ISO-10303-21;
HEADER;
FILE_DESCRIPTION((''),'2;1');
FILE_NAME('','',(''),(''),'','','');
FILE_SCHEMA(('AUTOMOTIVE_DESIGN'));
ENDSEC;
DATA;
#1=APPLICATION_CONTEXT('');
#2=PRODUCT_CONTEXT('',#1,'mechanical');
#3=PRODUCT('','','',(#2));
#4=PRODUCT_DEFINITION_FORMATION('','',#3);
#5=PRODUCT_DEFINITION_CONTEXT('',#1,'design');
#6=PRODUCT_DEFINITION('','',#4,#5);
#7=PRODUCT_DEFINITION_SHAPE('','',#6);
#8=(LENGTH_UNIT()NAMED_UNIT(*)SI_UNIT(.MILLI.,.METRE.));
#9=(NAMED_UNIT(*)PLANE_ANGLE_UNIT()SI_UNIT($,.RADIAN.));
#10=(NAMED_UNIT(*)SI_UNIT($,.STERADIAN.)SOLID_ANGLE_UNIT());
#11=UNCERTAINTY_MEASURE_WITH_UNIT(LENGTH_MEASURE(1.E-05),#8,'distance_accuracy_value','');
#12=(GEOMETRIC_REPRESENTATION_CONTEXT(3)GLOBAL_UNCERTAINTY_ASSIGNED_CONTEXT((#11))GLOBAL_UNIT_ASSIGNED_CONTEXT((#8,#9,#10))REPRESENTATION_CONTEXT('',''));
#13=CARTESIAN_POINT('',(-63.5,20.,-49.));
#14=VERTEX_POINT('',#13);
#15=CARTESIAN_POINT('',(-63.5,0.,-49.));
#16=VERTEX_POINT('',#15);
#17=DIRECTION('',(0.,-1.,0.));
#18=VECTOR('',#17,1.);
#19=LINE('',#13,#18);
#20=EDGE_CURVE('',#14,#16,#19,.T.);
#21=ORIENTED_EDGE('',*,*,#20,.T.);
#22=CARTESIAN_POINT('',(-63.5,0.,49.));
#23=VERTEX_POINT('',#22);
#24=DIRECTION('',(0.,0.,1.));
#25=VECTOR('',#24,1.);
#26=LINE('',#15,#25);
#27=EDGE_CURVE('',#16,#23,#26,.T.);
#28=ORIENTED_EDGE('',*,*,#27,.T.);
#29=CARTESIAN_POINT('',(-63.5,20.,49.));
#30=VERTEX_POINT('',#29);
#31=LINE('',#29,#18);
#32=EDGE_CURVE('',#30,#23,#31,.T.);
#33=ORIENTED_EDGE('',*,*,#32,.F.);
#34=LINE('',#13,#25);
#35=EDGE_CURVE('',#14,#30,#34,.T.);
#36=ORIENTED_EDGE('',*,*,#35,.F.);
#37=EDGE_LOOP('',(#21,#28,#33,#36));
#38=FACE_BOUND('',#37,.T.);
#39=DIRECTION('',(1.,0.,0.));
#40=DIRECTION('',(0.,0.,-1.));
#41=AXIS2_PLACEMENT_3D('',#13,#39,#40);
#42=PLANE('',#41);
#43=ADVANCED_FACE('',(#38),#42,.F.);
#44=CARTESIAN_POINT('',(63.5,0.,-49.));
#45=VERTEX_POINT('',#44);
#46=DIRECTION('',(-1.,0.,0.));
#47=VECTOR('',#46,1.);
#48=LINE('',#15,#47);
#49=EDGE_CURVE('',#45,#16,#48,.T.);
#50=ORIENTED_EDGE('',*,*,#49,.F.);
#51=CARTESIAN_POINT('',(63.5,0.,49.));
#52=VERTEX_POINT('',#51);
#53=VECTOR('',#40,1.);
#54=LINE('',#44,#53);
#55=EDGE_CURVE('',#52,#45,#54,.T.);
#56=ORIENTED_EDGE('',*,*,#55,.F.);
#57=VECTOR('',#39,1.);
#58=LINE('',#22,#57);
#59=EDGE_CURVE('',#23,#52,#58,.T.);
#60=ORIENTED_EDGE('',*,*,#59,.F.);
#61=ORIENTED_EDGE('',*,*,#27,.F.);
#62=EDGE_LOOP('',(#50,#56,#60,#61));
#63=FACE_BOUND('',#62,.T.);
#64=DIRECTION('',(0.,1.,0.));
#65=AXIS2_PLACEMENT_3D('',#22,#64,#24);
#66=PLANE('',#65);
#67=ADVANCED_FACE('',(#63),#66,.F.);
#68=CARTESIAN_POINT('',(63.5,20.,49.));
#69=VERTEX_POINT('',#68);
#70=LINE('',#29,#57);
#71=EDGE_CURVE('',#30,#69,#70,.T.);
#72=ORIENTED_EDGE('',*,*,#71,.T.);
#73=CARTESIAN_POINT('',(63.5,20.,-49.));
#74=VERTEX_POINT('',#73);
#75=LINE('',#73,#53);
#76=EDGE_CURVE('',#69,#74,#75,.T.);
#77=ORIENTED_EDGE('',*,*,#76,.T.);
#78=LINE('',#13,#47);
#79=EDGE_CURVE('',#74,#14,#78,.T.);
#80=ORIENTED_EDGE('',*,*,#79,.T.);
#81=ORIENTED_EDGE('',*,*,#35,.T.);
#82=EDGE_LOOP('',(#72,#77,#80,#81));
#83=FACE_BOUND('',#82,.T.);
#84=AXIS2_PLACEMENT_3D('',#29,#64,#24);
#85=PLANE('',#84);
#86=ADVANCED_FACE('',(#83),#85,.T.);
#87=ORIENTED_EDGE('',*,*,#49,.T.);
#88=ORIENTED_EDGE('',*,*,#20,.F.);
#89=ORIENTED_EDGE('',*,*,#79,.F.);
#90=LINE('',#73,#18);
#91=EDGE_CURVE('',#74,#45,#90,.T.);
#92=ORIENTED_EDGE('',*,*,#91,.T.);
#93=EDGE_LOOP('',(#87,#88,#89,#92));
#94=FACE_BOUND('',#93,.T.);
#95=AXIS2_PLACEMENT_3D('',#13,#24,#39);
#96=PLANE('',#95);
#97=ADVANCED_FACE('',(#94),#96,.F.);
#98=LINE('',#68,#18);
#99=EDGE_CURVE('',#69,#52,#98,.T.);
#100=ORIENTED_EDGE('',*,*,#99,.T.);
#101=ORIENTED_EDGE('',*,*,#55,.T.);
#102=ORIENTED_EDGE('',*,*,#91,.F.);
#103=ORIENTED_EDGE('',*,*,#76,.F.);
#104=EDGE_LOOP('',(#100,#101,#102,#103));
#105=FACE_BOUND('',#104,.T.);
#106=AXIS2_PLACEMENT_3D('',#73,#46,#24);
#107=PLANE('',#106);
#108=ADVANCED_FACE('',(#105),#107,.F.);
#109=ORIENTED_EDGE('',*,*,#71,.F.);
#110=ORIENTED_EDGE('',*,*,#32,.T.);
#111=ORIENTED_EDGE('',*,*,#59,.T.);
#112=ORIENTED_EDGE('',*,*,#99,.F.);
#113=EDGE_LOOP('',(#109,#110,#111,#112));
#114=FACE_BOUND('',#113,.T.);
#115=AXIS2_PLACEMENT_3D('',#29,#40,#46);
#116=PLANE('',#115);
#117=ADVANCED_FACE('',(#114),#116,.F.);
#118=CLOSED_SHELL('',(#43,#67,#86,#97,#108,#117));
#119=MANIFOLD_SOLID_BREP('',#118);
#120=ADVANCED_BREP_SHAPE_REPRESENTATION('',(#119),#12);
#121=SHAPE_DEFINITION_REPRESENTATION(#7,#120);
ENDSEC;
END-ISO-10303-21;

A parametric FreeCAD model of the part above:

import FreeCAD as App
import Part
import Sketcher

V = App.Vector
Q = App.Units.Quantity

doc = App.newDocument("Part")
body = doc.addObject("PartDesign::Body", "Body")

sketch1 = body.newObject("Sketcher::SketchObject", "Sketch")
sketch1.AttachmentSupport = (doc.getObject("XZ_Plane"), [""])
sketch1.MapMode = "FlatFace"
sketch1.addGeometry([
    Part.LineSegment(V(-63.5, -49, 0), V(-63.5, 49, 0)),
    Part.LineSegment(V(-63.5, 49, 0), V(63.5, 49, 0)),
    Part.LineSegment(V(63.5, 49, 0), V(63.5, -49, 0)),
    Part.LineSegment(V(63.5, -49, 0), V(-63.5, -49, 0)),
], False)
sketch1.addConstraint([
    Sketcher.Constraint("Coincident", 0, 2, 1, 1),
    Sketcher.Constraint("Coincident", 1, 2, 2, 1),
    Sketcher.Constraint("Coincident", 2, 2, 3, 1),
    Sketcher.Constraint("Coincident", 3, 2, 0, 1),
    Sketcher.Constraint("Vertical", 0),
    Sketcher.Constraint("Horizontal", 1),
    Sketcher.Constraint("Vertical", 2),
    Sketcher.Constraint("Horizontal", 3),
    Sketcher.Constraint("Symmetric", 0, 2, 2, 2, -1, 1),
    Sketcher.Constraint("DistanceX", 1, 1, 1, 2, Q("127 mm")),
    Sketcher.Constraint("DistanceY", 0, 1, 0, 2, Q("98 mm")),
])
pad1 = body.newObject("PartDesign::Pad", "Pad")
pad1.Profile = sketch1
pad1.Length = 20
pad1.Reversed = True

doc.recompute()
